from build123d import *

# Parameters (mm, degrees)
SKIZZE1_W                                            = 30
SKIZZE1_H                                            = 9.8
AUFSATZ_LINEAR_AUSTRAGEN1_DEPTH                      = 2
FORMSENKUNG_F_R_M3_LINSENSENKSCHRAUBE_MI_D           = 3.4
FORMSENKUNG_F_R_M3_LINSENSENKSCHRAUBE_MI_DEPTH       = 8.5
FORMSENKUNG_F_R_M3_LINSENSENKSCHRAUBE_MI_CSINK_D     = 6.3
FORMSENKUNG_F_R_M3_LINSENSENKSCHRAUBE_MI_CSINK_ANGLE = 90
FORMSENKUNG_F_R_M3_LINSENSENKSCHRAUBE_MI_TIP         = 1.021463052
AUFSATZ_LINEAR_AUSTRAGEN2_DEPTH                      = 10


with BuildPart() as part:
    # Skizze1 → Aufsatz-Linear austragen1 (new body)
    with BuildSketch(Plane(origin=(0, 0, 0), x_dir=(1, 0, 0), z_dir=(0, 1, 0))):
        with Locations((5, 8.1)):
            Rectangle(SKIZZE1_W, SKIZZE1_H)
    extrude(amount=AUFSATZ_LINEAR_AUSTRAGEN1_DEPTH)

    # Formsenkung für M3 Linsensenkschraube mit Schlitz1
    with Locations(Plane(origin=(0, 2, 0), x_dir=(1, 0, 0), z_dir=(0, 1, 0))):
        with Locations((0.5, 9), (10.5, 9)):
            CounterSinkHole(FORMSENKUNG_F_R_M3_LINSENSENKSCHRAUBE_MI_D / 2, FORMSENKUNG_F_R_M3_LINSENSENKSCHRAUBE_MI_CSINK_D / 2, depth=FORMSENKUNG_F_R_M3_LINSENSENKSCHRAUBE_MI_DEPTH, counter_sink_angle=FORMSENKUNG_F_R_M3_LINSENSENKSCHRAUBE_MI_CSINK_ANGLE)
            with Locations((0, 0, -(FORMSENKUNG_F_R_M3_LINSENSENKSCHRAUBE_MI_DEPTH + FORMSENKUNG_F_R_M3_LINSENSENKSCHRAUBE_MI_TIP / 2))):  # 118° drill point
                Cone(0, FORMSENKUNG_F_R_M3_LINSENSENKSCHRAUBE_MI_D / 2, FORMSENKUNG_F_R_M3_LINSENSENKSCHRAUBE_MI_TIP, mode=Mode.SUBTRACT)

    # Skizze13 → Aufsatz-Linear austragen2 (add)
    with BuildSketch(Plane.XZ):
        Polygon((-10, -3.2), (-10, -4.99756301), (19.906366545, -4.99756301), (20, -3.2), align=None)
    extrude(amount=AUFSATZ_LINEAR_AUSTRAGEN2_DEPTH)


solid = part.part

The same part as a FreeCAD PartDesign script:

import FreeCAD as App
import Part
import Sketcher
from FreeCAD import Vector
Q = App.Units.Quantity


def add_polygon(sketch, points):
    """Adds a closed chain of lines whose ends are joined by coincident constraints."""
    first, n = sketch.GeometryCount, len(points)
    for a, b in zip(points, points[1:] + points[:1]):
        sketch.addGeometry(Part.LineSegment(App.Vector(*a, 0), App.Vector(*b, 0)), False)
    for i in range(n):
        sketch.addConstraint(Sketcher.Constraint("Coincident", first + i, 2, first + (i + 1) % n, 1))

doc = App.newDocument("Part")
body = doc.addObject("PartDesign::Body", "Body")

# Sketch on XZ plane
sketch1 = body.newObject("Sketcher::SketchObject", "Sketch")
sketch1.AttachmentSupport = (doc.getObject("XZ_Plane"), [""])
sketch1.MapMode = "FlatFace"
add_polygon(sketch1, [(-10, -13), (-10, -3.2), (20, -3.2), (20, -13)])  # lines 0-3
sketch1.addConstraint([
    Sketcher.Constraint("Vertical", 0),
    Sketcher.Constraint("Horizontal", 1),
    Sketcher.Constraint("Vertical", 2),
    Sketcher.Constraint("Horizontal", 3),
    Sketcher.Constraint("DistanceX", 1, 1, 1, 2, Q("30 mm")),
    Sketcher.Constraint("DistanceY", 0, 1, 0, 2, Q("9.8 mm")),
    Sketcher.Constraint("DistanceX", 0, 2, -1, 1, Q("10 mm")),
    Sketcher.Constraint("DistanceY", 2, 2, -1, 1, Q("13 mm")),
])
pad1 = body.newObject("PartDesign::Pad", "Pad")
pad1.Profile = sketch1
pad1.Length = 2
pad1.Reversed = True

# Sketch on XZ plane
sketch2 = body.newObject("Sketcher::SketchObject", "Sketch001")
sketch2.AttachmentSupport = (doc.getObject("XZ_Plane"), [""])
sketch2.MapMode = "FlatFace"
sketch2.AttachmentOffset = App.Placement(Vector(0, 0, -2), App.Rotation())
sketch2.addGeometry([
    Part.Circle(Vector(0.5, -9, 0), Vector(0, 0, 1), 1.7),
    Part.Circle(Vector(10.5, -9, 0), Vector(0, 0, 1), 1.7),
], False)
sketch2.addConstraint([
    Sketcher.Constraint("Equal", 0, 1),
    Sketcher.Constraint("Horizontal", 0, 3, 1, 3),
    Sketcher.Constraint("Diameter", 0, Q("3.4 mm")),
    Sketcher.Constraint("DistanceY", 0, 3, -1, 1, Q("9 mm")),
    Sketcher.Constraint("DistanceX", 0, 3, 1, 3, Q("10 mm")),
    Sketcher.Constraint("DistanceX", -1, 1, 0, 3, Q("0.5 mm")),
])
doc.recompute()
hole = body.newObject("PartDesign::Hole", "Hole")
hole.Profile = sketch2
hole.ThreadType = "None"
hole.Diameter = 3.4
hole.DepthType = "Dimension"
hole.Depth = 8.5
hole.DrillPoint = "Angled"
hole.DrillPointAngle = 118
hole.HoleCutType = "Countersink"
hole.HoleCutDiameter = 6.3
hole.HoleCutCountersinkAngle = 90
hole.Reversed = True

# Sketch on XZ plane
sketch3 = body.newObject("Sketcher::SketchObject", "Sketch002")
sketch3.AttachmentSupport = (doc.getObject("XZ_Plane"), [""])
sketch3.MapMode = "FlatFace"
add_polygon(sketch3, [(-10, -3.2), (-10, -4.997563), (19.906367, -4.997563), (20, -3.2)])  # lines 0-3
sketch3.addConstraint([
    Sketcher.Constraint("Vertical", 0),
    Sketcher.Constraint("Horizontal", 1),
    Sketcher.Constraint("Horizontal", 3),
    Sketcher.Constraint("DistanceX", 3, 2, 3, 1, Q("30 mm")),
    Sketcher.Constraint("DistanceX", 0, 2, -1, 1, Q("10 mm")),
    Sketcher.Constraint("Distance", 2, Q("1.8 mm")),
    Sketcher.Constraint("DistanceY", 2, 2, -1, 1, Q("3.2 mm")),
    Sketcher.Constraint("DistanceX", 1, 1, 1, 2, Q("29.906367 mm")),
])
pad2 = body.newObject("PartDesign::Pad", "Pad001")
pad2.Profile = sketch3
pad2.Length = 10

doc.recompute()
